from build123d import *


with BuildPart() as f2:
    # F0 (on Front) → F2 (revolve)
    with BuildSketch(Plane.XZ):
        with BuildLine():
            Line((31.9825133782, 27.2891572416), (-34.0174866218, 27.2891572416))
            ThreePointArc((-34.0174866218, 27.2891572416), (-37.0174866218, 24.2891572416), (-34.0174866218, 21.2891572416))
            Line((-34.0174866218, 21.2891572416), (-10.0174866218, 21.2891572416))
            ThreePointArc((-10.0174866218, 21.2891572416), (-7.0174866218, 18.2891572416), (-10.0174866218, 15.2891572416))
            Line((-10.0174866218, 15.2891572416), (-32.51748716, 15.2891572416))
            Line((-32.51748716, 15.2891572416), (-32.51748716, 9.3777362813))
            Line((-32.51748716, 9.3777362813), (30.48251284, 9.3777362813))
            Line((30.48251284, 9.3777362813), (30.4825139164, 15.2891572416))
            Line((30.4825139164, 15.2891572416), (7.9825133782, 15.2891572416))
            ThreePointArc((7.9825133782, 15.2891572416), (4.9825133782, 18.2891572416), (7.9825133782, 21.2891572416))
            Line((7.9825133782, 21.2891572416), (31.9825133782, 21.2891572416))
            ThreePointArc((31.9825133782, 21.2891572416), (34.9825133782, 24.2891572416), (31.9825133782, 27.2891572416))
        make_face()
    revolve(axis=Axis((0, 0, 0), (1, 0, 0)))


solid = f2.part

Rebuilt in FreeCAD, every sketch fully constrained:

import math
import FreeCAD as App
import Part
import Sketcher
from FreeCAD import Vector

doc = App.newDocument("Part")
body = doc.addObject("PartDesign::Body", "Body")

# Sketch on XZ plane
sketch1 = body.newObject("Sketcher::SketchObject", "Sketch")
sketch1.AttachmentSupport = (doc.getObject("XZ_Plane"), [""])
sketch1.MapMode = "FlatFace"
sketch1.addGeometry(Part.LineSegment(Vector(31.982513, 27.289157, 0), Vector(-34.017487, 27.289157, 0)), False)
sketch1.addGeometry(Part.ArcOfCircle(Part.Circle(Vector(-34.017487, 24.289157, 0), Vector(0, 0, 1), 3), math.radians(90), math.radians(270)), False)
sketch1.addGeometry(Part.LineSegment(Vector(-34.017487, 21.289157, 0), Vector(-10.017487, 21.289157, 0)), False)
sketch1.addGeometry(Part.ArcOfCircle(Part.Circle(Vector(-10.017487, 18.289157, 0), Vector(0, 0, 1), 3), math.radians(-90), math.radians(90)), False)
sketch1.addGeometry(Part.LineSegment(Vector(-10.017487, 15.289157, 0), Vector(-32.517487, 15.289157, 0)), False)
sketch1.addGeometry(Part.LineSegment(Vector(-32.517487, 15.289157, 0), Vector(-32.517487, 9.377736, 0)), False)
sketch1.addGeometry(Part.LineSegment(Vector(-32.517487, 9.377736, 0), Vector(30.482513, 9.377736, 0)), False)
sketch1.addGeometry(Part.LineSegment(Vector(30.482513, 9.377736, 0), Vector(30.482514, 15.289157, 0)), False)
sketch1.addGeometry(Part.LineSegment(Vector(30.482514, 15.289157, 0), Vector(7.982513, 15.289157, 0)), False)
sketch1.addGeometry(Part.ArcOfCircle(Part.Circle(Vector(7.982513, 18.289157, 0), Vector(0, 0, 1), 3), math.radians(90), math.radians(270)), False)
sketch1.addGeometry(Part.LineSegment(Vector(7.982513, 21.289157, 0), Vector(31.982513, 21.289157, 0)), False)
sketch1.addGeometry(Part.ArcOfCircle(Part.Circle(Vector(31.982513, 24.289157, 0), Vector(0, 0, 1), 3), math.radians(-90), math.radians(90)), False)
sketch1.addConstraint(Sketcher.Constraint("Tangent", 0, 2, 1, 1))
sketch1.addConstraint(Sketcher.Constraint("Tangent", 1, 2, 2, 1))
sketch1.addConstraint(Sketcher.Constraint("Tangent", 2, 2, 3, 2))
sketch1.addConstraint(Sketcher.Constraint("Tangent", 3, 1, 4, 1))
sketch1.addConstraint(Sketcher.Constraint("Coincident", 4, 2, 5, 1))
sketch1.addConstraint(Sketcher.Constraint("Coincident", 5, 2, 6, 1))
sketch1.addConstraint(Sketcher.Constraint("Coincident", 6, 2, 7, 1))
sketch1.addConstraint(Sketcher.Constraint("Coincident", 7, 2, 8, 1))
sketch1.addConstraint(Sketcher.Constraint("Tangent", 8, 2, 9, 2))
sketch1.addConstraint(Sketcher.Constraint("Tangent", 9, 1, 10, 1))
sketch1.addConstraint(Sketcher.Constraint("Tangent", 10, 2, 11, 1))
sketch1.addConstraint(Sketcher.Constraint("Tangent", 11, 2, 0, 1))
sketch1.addConstraint(Sketcher.Constraint("Horizontal", 0))
sketch1.addConstraint(Sketcher.Constraint("Horizontal", 2))
sketch1.addConstraint(Sketcher.Constraint("Horizontal", 4))
sketch1.addConstraint(Sketcher.Constraint("Vertical", 5))
sketch1.addConstraint(Sketcher.Constraint("Horizontal", 6))
sketch1.addConstraint(Sketcher.Constraint("Vertical", 7))
sketch1.addConstraint(Sketcher.Constraint("Horizontal", 8))
sketch1.addConstraint(Sketcher.Constraint("Horizontal", 10))
sketch1.addConstraint(Sketcher.Constraint("Equal", 1, 3))
sketch1.addConstraint(Sketcher.Constraint("Equal", 3, 9))
sketch1.addConstraint(Sketcher.Constraint("Equal", 9, 11))
sketch1.addConstraint(Sketcher.Constraint("Equal", 4, 8))
sketch1.addConstraint(Sketcher.Constraint("Equal", 2, 10))
sketch1.addConstraint(Sketcher.Constraint("Radius", 1, 3.0))
sketch1.addConstraint(Sketcher.Constraint("DistanceX", 0, 2, 0, 1, 66.0))
sketch1.addConstraint(Sketcher.Constraint("DistanceX", 2, 1, 2, 2, 24.0))
sketch1.addConstraint(Sketcher.Constraint("DistanceX", 6, 1, 6, 2, 63.0))
sketch1.addConstraint(Sketcher.Constraint("DistanceY", 5, 2, 5, 1, 5.911421))
sketch1.addConstraint(Sketcher.Constraint("DistanceX", 1, 3, -1, 1, 34.017487))
sketch1.addConstraint(Sketcher.Constraint("DistanceY", -1, 1, 1, 3, 24.289157))
revolution = body.newObject("PartDesign::Revolution", "Revolution")
revolution.Profile = sketch1
revolution.ReferenceAxis = (sketch1, ["H_Axis"])
revolution.Angle = 360

doc.recompute()
